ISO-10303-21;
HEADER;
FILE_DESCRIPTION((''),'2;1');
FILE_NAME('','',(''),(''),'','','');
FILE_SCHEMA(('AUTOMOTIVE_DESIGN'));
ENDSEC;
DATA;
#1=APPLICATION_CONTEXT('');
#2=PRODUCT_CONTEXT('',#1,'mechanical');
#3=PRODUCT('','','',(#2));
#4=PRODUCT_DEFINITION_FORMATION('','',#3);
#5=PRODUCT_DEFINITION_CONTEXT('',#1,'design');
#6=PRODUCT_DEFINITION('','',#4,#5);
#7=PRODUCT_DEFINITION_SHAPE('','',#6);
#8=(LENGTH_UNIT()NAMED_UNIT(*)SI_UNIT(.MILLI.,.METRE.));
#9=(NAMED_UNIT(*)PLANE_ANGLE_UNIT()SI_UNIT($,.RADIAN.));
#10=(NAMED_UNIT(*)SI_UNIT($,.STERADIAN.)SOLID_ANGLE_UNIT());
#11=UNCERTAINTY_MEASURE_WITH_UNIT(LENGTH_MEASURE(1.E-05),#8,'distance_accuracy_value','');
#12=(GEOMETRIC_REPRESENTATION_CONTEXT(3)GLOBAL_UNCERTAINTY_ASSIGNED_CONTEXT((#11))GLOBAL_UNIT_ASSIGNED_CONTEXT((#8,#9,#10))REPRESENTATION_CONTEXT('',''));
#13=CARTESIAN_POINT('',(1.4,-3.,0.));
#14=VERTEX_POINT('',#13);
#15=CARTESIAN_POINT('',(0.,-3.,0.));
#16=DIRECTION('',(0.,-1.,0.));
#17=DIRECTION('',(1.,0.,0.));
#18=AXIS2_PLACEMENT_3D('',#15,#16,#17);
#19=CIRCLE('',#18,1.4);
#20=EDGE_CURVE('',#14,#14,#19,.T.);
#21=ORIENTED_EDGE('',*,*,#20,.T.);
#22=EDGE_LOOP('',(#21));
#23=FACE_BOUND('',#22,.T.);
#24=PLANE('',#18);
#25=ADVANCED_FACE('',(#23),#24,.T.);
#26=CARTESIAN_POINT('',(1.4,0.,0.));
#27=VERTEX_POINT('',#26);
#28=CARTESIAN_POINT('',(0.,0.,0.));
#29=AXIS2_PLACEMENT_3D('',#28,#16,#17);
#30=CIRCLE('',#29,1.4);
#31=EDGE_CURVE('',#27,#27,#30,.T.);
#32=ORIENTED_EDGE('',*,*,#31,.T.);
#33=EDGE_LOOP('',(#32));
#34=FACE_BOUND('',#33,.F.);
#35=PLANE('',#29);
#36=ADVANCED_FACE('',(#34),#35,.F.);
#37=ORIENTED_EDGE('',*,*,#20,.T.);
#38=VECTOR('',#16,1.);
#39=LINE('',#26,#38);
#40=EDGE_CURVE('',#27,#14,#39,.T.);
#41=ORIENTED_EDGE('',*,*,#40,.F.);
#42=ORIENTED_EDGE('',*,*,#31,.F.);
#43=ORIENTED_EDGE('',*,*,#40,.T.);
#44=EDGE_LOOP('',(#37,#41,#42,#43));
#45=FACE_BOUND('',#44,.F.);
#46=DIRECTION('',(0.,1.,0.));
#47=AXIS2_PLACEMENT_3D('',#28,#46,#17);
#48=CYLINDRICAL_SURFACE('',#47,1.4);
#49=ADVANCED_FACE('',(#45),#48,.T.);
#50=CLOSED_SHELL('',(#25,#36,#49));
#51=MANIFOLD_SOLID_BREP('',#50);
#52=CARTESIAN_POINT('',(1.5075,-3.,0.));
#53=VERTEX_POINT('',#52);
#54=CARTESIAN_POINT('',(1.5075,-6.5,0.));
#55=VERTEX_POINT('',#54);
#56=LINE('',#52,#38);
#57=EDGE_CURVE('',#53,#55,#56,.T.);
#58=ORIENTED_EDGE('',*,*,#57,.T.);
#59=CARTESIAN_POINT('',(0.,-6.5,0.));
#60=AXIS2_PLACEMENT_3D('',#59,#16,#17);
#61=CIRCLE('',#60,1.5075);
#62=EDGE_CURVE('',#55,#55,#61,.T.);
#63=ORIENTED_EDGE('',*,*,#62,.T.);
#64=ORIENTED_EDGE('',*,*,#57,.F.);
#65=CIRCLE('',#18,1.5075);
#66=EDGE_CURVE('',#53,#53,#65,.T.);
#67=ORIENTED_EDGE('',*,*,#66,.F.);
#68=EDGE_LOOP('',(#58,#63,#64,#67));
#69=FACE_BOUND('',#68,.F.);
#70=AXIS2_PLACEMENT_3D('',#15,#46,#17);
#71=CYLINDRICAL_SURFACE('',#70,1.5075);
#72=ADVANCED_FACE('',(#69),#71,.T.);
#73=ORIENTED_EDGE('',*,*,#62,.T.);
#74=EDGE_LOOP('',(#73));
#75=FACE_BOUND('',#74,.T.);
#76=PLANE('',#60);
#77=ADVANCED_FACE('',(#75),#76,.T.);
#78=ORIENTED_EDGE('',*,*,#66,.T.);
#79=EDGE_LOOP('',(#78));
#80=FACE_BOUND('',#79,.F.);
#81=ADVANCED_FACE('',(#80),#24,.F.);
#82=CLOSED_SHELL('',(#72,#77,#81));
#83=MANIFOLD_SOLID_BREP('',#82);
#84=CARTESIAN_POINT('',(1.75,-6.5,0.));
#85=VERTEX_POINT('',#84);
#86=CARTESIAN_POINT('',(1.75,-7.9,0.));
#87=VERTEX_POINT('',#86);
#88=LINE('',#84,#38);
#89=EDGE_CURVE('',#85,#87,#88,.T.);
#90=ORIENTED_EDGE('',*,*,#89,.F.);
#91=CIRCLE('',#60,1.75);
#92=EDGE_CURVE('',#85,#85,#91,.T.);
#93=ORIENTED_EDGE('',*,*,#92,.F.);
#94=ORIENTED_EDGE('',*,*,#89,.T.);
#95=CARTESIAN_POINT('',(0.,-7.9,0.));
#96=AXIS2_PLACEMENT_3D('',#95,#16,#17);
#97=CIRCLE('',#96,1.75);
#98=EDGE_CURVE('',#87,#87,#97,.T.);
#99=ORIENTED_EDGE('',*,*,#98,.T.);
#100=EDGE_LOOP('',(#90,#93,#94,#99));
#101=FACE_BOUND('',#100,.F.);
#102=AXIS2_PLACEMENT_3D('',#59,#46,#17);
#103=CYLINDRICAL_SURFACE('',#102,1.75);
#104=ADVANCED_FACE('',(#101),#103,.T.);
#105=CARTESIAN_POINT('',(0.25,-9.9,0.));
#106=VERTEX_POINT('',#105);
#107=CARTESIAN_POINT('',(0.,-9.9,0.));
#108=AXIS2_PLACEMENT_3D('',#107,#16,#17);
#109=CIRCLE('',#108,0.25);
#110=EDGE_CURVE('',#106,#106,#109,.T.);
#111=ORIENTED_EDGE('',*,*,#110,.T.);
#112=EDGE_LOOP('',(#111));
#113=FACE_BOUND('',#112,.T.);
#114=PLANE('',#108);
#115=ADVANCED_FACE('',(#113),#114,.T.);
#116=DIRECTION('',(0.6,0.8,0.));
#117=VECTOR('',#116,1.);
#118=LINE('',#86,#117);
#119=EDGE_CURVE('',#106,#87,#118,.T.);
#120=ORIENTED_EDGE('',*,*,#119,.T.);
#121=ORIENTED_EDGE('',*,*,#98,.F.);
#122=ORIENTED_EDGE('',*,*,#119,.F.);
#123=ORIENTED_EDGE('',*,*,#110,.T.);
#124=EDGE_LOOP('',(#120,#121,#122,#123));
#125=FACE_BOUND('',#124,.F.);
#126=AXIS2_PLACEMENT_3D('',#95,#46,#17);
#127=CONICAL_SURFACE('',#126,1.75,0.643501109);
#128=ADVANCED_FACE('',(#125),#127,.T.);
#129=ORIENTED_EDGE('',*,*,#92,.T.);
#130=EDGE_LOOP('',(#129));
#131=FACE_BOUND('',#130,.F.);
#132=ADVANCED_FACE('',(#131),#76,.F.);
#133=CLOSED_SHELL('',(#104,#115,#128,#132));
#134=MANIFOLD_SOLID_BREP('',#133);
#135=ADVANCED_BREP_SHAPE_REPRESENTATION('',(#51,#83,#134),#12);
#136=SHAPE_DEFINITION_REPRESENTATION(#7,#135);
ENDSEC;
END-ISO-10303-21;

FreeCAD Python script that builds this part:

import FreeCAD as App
import Part
import Sketcher

V = App.Vector
Q = App.Units.Quantity


def edges_at(feature, points):
    """Names of the edges that pass closest to the given points."""
    edges = feature.Shape.Edges
    near = lambda p: min(range(len(edges)), key=lambda i: edges[i].distToShape(Part.Vertex(*p))[0])
    return sorted({f"Edge{near(p) + 1}" for p in points})

doc = App.newDocument("Part")
body = doc.addObject("PartDesign::Body", "Body")

# Sketch on XZ plane
sketch1 = body.newObject("Sketcher::SketchObject", "Sketch")
sketch1.AttachmentSupport = (doc.getObject("XZ_Plane"), [""])
sketch1.MapMode = "FlatFace"
sketch1.addGeometry(Part.Circle(V(0, 0, 0), V(0, 0, 1), 1.4), False)
sketch1.addConstraint(Sketcher.Constraint("Coincident", 0, 3, -1, 1))
sketch1.addConstraint(Sketcher.Constraint("Diameter", 0, Q("2.8 mm")))
pad1 = body.newObject("PartDesign::Pad", "Pad")
pad1.Profile = sketch1
pad1.Length = 3
body2 = doc.addObject("PartDesign::Body", "Body001")

# Sketch on XZ plane
sketch2 = body2.newObject("Sketcher::SketchObject", "Sketch001")
sketch2.AttachmentSupport = (doc.getObject("XZ_Plane001"), [""])
sketch2.MapMode = "FlatFace"
sketch2.AttachmentOffset = App.Placement(V(0, 0, 3), App.Rotation())
sketch2.addGeometry(Part.Circle(V(0, 0, 0), V(0, 0, 1), 1.5), False)
sketch2.addConstraint(Sketcher.Constraint("Coincident", 0, 3, -1, 1))
sketch2.addConstraint(Sketcher.Constraint("Diameter", 0, Q("3.015 mm")))
pad2 = body2.newObject("PartDesign::Pad", "Pad001")
pad2.Profile = sketch2
pad2.Length = 3.5
body3 = doc.addObject("PartDesign::Body", "Body002")

# Sketch on XZ plane
sketch3 = body3.newObject("Sketcher::SketchObject", "Sketch002")
sketch3.AttachmentSupport = (doc.getObject("XZ_Plane002"), [""])
sketch3.MapMode = "FlatFace"
sketch3.AttachmentOffset = App.Placement(V(0, 0, 6.5), App.Rotation())
sketch3.addGeometry(Part.Circle(V(0, 0, 0), V(0, 0, 1), 1.8), False)
sketch3.addConstraint(Sketcher.Constraint("Coincident", 0, 3, -1, 1))
sketch3.addConstraint(Sketcher.Constraint("Diameter", 0, Q("3.5 mm")))
pad3 = body3.newObject("PartDesign::Pad", "Pad002")
pad3.Profile = sketch3
pad3.Length = 3.4
doc.recompute()

chamfer = body3.newObject("PartDesign::Chamfer", "Chamfer")
chamfer.Base = (pad3, edges_at(pad3, [(-1.75, -9.9, 0)]))
chamfer.ChamferType = "Two distances"
chamfer.Size = 1.5
chamfer.Size2 = 2
chamfer.FlipDirection = True

doc.recompute()
